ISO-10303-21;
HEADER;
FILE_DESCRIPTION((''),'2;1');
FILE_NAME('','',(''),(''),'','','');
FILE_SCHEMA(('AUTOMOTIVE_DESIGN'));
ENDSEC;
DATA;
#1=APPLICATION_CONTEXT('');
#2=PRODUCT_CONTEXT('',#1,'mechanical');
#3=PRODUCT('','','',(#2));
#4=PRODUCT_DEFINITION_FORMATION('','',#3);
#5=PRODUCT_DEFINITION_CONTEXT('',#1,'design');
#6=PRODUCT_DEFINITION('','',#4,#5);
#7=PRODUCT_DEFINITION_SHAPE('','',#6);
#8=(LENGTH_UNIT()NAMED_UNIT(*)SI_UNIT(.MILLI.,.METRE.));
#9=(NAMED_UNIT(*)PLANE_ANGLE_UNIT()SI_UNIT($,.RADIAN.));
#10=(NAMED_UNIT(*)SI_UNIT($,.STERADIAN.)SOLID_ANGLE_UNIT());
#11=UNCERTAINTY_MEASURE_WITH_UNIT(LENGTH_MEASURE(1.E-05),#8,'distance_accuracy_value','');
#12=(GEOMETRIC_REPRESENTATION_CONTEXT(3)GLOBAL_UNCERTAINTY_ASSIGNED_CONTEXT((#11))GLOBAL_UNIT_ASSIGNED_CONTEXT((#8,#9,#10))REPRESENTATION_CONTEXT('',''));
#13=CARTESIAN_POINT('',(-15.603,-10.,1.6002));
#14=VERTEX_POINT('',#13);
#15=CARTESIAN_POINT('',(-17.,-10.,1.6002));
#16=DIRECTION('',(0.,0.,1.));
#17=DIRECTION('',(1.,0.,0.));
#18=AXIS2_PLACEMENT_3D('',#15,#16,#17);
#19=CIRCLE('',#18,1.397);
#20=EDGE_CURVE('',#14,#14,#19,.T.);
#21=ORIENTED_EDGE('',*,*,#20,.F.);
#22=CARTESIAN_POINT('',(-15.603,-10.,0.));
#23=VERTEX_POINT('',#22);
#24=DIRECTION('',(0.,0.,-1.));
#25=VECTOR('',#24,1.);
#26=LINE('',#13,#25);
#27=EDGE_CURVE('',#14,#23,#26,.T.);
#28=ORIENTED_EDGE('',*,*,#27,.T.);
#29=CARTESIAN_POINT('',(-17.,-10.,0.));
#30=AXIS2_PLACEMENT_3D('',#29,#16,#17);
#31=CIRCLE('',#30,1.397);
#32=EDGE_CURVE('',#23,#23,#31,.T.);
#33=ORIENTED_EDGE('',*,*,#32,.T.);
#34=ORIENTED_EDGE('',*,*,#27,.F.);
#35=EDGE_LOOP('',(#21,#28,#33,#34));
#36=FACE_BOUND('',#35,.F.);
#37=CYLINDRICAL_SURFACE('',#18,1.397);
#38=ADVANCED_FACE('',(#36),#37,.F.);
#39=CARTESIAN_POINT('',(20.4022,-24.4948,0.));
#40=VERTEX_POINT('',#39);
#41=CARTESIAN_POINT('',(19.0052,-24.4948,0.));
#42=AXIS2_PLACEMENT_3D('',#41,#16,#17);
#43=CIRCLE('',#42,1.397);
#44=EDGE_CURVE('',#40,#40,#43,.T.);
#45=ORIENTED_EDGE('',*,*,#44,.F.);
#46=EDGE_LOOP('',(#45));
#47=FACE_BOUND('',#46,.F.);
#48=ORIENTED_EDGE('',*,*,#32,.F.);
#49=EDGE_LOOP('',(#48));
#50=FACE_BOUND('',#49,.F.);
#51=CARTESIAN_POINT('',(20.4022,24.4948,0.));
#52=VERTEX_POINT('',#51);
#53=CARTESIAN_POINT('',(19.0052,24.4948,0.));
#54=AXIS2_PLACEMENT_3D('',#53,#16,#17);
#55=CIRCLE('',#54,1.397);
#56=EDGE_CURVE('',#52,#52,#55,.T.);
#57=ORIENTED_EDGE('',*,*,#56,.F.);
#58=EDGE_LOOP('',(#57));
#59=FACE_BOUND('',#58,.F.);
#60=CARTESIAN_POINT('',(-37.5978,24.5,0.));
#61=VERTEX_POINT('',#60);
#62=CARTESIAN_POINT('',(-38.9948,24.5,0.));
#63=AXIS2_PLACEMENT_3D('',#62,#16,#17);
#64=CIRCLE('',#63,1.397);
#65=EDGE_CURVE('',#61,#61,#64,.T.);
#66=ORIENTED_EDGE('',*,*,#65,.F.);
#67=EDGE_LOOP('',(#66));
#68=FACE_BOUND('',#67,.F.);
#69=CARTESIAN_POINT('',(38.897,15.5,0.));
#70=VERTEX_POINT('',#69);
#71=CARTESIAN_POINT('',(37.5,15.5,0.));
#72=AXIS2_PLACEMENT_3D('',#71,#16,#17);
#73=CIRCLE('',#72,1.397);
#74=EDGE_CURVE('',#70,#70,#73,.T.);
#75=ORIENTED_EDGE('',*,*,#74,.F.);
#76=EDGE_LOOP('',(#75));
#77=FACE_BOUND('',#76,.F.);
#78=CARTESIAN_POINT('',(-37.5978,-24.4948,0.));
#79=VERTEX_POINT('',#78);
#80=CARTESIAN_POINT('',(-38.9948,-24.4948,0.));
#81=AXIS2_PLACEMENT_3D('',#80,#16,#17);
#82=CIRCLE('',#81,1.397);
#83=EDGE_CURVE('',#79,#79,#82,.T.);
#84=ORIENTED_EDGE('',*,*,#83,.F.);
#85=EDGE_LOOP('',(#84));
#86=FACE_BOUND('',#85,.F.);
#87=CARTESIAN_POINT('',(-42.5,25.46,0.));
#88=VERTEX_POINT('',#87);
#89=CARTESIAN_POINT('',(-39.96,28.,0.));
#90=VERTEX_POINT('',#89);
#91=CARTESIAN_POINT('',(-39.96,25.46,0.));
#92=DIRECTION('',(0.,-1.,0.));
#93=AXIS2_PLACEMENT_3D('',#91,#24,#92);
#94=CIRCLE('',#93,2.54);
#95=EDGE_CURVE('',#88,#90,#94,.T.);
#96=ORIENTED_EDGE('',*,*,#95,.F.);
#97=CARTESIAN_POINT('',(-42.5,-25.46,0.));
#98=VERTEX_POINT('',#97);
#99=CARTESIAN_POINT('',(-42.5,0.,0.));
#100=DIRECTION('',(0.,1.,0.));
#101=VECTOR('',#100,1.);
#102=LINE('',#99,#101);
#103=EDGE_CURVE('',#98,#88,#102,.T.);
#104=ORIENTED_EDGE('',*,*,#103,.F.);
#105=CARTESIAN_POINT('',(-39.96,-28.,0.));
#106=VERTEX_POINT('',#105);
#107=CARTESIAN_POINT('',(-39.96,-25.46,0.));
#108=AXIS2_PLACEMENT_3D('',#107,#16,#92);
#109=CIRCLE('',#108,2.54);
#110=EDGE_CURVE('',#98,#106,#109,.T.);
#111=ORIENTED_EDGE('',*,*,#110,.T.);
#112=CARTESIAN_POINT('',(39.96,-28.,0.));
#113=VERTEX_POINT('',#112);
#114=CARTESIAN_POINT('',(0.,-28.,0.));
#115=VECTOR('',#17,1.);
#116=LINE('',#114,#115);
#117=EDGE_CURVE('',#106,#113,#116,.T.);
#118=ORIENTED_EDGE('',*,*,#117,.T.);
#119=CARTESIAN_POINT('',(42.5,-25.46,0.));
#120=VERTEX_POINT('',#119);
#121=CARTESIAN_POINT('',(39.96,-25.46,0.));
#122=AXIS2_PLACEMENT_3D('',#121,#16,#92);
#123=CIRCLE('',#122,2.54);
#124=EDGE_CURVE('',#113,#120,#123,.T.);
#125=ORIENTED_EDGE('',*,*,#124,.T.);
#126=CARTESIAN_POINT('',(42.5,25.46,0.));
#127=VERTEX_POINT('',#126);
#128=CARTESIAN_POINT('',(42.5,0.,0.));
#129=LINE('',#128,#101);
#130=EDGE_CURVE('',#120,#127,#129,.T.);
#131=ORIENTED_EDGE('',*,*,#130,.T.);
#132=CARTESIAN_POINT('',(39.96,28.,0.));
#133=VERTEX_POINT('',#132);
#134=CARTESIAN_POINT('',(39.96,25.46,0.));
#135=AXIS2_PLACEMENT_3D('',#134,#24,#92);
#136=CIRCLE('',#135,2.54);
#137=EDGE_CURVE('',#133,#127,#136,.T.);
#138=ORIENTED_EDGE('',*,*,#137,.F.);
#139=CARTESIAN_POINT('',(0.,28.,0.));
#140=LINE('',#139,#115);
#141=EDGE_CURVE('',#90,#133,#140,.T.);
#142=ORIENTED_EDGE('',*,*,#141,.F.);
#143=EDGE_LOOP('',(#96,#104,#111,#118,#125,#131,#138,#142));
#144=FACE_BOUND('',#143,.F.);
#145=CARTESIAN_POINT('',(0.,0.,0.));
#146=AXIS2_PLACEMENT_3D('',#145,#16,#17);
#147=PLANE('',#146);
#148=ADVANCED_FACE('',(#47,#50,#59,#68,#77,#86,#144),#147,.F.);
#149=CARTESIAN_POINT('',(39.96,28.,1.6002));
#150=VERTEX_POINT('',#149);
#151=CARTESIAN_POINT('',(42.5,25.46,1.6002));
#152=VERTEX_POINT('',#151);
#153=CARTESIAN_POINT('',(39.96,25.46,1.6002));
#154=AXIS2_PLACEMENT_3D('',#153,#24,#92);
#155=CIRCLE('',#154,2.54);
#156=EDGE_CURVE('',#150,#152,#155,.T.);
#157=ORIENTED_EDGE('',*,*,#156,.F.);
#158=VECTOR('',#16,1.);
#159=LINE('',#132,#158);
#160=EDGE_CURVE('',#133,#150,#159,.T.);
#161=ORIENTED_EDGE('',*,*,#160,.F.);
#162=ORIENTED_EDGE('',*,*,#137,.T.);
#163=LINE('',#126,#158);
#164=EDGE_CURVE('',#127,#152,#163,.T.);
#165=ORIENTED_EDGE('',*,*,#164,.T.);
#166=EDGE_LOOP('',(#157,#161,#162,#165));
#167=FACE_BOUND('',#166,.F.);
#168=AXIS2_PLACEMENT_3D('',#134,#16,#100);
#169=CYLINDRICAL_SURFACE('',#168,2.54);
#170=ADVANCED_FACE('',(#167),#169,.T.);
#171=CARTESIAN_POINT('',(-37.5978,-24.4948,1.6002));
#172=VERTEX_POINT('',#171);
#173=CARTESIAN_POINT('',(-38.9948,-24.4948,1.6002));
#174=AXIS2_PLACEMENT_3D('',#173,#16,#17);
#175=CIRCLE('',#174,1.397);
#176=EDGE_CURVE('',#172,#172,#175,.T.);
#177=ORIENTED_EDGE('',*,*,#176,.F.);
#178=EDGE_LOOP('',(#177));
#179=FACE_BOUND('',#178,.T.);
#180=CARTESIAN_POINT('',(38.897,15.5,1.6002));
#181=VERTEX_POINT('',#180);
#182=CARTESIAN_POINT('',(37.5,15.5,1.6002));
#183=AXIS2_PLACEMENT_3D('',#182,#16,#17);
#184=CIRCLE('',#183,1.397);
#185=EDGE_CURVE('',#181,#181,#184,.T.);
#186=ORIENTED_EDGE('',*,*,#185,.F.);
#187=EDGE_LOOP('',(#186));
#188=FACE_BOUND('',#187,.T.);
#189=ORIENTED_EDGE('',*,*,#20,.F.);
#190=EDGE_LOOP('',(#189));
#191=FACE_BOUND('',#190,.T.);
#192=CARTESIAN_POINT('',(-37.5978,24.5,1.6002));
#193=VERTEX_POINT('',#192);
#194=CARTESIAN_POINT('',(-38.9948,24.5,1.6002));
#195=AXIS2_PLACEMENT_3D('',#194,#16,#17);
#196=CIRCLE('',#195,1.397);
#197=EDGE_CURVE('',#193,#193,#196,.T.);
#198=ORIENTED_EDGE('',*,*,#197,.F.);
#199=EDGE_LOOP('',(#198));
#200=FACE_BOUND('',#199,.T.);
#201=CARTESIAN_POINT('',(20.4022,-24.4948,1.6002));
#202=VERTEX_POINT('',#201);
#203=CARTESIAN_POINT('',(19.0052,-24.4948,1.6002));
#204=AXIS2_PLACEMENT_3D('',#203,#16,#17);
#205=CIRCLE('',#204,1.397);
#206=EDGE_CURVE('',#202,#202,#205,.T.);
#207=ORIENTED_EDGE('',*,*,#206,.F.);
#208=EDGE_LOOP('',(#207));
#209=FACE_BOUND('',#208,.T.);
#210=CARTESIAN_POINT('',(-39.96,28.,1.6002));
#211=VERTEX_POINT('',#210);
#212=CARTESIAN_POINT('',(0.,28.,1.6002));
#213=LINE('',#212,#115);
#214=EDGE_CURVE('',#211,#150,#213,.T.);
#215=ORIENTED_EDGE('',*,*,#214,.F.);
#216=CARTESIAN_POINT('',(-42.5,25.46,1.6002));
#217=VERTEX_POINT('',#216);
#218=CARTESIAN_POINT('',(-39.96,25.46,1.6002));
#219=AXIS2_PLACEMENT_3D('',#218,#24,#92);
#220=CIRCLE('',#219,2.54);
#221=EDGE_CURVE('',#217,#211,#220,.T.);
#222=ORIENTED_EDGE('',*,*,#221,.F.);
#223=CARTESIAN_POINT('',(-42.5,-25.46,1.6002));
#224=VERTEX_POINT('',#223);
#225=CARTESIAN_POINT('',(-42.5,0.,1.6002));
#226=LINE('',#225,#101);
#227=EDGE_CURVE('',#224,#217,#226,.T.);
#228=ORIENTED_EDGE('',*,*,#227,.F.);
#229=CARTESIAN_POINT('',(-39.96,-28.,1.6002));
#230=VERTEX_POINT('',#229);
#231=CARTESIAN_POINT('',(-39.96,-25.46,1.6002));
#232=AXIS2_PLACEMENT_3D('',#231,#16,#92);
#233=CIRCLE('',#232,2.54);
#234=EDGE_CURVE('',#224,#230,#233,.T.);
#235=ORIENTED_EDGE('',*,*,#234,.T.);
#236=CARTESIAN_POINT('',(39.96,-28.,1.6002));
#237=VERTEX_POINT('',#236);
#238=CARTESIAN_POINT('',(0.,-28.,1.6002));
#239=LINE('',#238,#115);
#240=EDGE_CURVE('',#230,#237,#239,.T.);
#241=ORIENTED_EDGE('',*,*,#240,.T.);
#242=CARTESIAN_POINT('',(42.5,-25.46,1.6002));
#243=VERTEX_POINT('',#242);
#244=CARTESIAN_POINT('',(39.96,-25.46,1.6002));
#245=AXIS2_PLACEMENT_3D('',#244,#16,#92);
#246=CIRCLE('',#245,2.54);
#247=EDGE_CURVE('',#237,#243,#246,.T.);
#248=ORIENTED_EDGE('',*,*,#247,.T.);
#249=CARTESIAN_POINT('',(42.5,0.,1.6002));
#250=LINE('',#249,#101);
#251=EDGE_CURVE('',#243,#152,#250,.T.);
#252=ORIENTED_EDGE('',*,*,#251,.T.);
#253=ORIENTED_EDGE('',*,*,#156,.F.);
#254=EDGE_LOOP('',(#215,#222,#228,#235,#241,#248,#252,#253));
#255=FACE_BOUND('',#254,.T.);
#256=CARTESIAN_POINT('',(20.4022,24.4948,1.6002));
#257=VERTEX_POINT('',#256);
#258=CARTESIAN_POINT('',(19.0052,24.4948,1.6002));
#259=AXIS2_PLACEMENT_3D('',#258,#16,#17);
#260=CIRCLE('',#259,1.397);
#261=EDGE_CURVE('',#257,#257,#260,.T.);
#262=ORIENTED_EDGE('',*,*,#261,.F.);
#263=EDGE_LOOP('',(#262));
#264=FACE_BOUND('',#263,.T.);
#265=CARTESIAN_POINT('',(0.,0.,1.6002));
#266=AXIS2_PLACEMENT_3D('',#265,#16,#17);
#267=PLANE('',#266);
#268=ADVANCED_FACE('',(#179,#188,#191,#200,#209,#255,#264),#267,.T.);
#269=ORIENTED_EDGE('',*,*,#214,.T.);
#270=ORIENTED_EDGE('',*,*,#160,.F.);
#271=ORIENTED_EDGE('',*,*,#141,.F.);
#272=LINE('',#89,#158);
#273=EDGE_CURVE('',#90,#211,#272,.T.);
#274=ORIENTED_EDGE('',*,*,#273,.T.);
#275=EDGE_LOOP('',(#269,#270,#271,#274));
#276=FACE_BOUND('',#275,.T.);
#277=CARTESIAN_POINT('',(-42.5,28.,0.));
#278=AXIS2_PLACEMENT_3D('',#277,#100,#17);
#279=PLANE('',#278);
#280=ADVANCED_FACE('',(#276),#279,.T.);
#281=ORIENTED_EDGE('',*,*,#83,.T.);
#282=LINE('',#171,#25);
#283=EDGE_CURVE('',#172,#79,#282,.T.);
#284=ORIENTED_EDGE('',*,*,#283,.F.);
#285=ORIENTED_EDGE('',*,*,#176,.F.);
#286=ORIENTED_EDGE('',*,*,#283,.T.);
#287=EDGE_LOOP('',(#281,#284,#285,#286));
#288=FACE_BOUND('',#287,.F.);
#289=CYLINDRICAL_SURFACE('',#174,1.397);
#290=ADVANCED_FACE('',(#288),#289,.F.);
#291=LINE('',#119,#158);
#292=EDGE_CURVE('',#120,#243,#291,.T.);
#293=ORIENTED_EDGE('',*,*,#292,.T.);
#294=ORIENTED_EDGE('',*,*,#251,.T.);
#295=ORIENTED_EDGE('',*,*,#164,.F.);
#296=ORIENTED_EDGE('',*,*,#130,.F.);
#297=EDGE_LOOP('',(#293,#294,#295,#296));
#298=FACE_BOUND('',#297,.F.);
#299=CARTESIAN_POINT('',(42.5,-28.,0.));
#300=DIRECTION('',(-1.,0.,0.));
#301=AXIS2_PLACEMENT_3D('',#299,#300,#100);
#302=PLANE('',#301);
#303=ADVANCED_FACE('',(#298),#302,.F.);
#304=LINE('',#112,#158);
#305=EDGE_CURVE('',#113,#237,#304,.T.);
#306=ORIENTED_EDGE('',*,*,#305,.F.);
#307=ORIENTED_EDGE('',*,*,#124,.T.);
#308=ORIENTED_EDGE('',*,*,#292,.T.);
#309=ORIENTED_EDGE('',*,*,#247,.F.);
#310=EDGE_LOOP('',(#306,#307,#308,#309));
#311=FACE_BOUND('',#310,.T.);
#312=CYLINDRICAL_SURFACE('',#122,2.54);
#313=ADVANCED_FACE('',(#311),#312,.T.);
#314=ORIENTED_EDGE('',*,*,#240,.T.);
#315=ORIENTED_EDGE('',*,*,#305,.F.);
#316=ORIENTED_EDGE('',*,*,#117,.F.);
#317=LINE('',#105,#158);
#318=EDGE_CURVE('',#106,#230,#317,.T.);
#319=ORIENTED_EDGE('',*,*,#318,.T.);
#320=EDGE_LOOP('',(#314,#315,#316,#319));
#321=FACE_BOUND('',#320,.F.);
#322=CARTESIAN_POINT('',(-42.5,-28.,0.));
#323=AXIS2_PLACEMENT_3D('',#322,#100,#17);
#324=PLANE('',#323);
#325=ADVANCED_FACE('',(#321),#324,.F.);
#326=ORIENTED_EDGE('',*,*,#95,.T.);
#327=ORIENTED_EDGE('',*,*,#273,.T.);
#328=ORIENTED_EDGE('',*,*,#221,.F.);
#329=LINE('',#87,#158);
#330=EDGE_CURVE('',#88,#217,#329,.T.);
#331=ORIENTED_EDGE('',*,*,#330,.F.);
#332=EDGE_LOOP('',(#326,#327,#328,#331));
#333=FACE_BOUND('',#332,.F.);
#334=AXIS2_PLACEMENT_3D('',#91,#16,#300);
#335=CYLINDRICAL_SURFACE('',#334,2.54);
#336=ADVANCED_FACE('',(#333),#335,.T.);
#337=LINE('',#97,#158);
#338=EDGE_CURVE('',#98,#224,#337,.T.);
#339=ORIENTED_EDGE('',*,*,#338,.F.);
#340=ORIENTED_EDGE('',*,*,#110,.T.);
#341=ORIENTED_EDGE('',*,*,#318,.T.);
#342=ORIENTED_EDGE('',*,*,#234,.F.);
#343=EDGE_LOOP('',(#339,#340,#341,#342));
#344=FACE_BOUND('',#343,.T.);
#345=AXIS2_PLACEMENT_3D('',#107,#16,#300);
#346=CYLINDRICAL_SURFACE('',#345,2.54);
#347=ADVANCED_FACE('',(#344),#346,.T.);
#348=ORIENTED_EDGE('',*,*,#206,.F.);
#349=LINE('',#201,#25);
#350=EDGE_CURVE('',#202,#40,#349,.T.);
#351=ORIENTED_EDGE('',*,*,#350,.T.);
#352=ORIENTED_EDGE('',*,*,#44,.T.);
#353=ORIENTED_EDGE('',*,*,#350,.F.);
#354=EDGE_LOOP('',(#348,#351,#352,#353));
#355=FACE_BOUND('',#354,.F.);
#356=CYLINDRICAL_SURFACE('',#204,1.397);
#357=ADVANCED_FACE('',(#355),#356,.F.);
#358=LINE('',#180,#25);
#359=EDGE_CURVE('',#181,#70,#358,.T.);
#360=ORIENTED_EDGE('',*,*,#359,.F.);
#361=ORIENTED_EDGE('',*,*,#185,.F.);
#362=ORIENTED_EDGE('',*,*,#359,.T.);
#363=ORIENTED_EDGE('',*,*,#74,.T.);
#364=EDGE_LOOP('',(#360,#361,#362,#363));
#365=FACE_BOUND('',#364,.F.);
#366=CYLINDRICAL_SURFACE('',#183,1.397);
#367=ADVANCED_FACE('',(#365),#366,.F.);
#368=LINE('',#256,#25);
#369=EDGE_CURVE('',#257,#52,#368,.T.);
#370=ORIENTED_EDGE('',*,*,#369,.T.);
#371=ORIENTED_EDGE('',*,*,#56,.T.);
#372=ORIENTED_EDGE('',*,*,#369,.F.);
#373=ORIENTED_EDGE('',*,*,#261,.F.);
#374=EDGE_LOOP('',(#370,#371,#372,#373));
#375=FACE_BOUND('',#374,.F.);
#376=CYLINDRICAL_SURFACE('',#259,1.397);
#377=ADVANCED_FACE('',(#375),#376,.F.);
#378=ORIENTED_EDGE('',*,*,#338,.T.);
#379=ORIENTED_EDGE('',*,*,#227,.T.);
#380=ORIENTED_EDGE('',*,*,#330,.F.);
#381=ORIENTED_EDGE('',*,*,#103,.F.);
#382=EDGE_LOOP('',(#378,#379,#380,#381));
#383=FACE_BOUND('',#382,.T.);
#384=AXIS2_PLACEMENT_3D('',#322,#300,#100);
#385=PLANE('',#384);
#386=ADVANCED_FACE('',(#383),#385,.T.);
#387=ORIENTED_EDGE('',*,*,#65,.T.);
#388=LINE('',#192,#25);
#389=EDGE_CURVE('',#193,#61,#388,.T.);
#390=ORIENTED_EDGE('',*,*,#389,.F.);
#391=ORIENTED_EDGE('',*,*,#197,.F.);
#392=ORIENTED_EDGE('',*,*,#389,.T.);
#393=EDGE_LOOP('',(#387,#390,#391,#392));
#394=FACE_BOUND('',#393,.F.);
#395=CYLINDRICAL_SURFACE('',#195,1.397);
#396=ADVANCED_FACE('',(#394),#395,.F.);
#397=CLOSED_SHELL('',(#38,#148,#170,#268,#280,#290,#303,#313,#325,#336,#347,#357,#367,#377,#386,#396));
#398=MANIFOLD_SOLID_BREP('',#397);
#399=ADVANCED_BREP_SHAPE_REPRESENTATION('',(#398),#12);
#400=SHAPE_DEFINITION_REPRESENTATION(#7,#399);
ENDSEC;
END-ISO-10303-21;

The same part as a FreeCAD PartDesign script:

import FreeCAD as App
import Part
import Sketcher

V = App.Vector
Q = App.Units.Quantity


def edges_at(feature, points):
    """Names of the edges that pass closest to the given points."""
    edges = feature.Shape.Edges
    near = lambda p: min(range(len(edges)), key=lambda i: edges[i].distToShape(Part.Vertex(*p))[0])
    return sorted({f"Edge{near(p) + 1}" for p in points})


def add_polygon(sketch, points):
    """Adds a closed chain of lines whose ends are joined by coincident constraints."""
    first, n = sketch.GeometryCount, len(points)
    for a, b in zip(points, points[1:] + points[:1]):
        sketch.addGeometry(Part.LineSegment(App.Vector(*a, 0), App.Vector(*b, 0)), False)
    for i in range(n):
        sketch.addConstraint(Sketcher.Constraint("Coincident", first + i, 2, first + (i + 1) % n, 1))

doc = App.newDocument("Part")
body = doc.addObject("PartDesign::Body", "Body")

sketch1 = body.newObject("Sketcher::SketchObject", "Sketch")
sketch1.AttachmentSupport = (doc.getObject("XY_Plane"), [""])
sketch1.MapMode = "FlatFace"
add_polygon(sketch1, [(-42, 28), (-42, -28), (42, -28), (42, 28)])
sketch1.addConstraint([
    Sketcher.Constraint("Vertical", 0),
    Sketcher.Constraint("Horizontal", 1),
    Sketcher.Constraint("Vertical", 2),
    Sketcher.Constraint("Horizontal", 3),
    Sketcher.Constraint("Symmetric", 0, 2, 2, 2, -1, 1),
    Sketcher.Constraint("DistanceX", 1, 1, 1, 2, 85.0),
    Sketcher.Constraint("DistanceY", 0, 2, 0, 1, 56.0),
])
pad1 = body.newObject("PartDesign::Pad", "Pad")
pad1.Profile = sketch1
pad1.Length = Q("0.063 in")

sketch2 = body.newObject("Sketcher::SketchObject", "Sketch001")
sketch2.AttachmentSupport = (doc.getObject("XY_Plane"), [""])
sketch2.MapMode = "FlatFace"
sketch2.AttachmentOffset = App.Placement(V(0, 0, 0.063 * 25.4), App.Rotation())
sketch2.addGeometry([
    Part.Circle(V(-39, 24.5, 0), V(0, 0, 1), 1.4),
    Part.Circle(V(-39, -24.5, 0), V(0, 0, 1), 1.4),
    Part.Circle(V(19, 24.5, 0), V(0, 0, 1), 1.4),
    Part.Circle(V(19, -24.5, 0), V(0, 0, 1), 1.4),
], False)
sketch2.addConstraint([
    Sketcher.Constraint("Equal", 0, 1),
    Sketcher.Constraint("Equal", 1, 2),
    Sketcher.Constraint("Equal", 2, 3),
    Sketcher.Constraint("Symmetric", 2, 3, 3, 3, -1),
    Sketcher.Constraint("Horizontal", 1, 3, 3, 3),
    Sketcher.Constraint("Vertical", 0, 3, 1, 3),
    Sketcher.Constraint("Diameter", 0, Q("0.11 in")),
    Sketcher.Constraint("DistanceX", 0, 3, -1, 1, 38.9948),
    Sketcher.Constraint("DistanceY", -1, 1, 0, 3, 24.5),
    Sketcher.Constraint("DistanceY", 1, 3, -1, 1, 24.4948),
    Sketcher.Constraint("DistanceX", -1, 1, 2, 3, 19.0052),
])
pocket1 = body.newObject("PartDesign::Pocket", "Pocket")
pocket1.Profile = sketch2
pocket1.Length = Q("1 in")

sketch3 = body.newObject("Sketcher::SketchObject", "Sketch002")
sketch3.AttachmentSupport = (doc.getObject("XY_Plane"), [""])
sketch3.MapMode = "FlatFace"
sketch3.AttachmentOffset = App.Placement(V(0, 0, 0.063 * 25.4), App.Rotation())
sketch3.addGeometry([
    Part.Circle(V(-17, -10, 0), V(0, 0, 1), 1.4),
    Part.Circle(V(37.5, 15.5, 0), V(0, 0, 1), 1.4),
], False)
sketch3.addConstraint([
    Sketcher.Constraint("Equal", 0, 1),
    Sketcher.Constraint("Diameter", 0, Q("0.11 in")),
    Sketcher.Constraint("DistanceX", 0, 3, -1, 1, 17.0),
    Sketcher.Constraint("DistanceY", 0, 3, -1, 1, 10.0),
    Sketcher.Constraint("DistanceX", -1, 1, 1, 3, 37.5),
    Sketcher.Constraint("DistanceY", -1, 1, 1, 3, 15.5),
])
pocket2 = body.newObject("PartDesign::Pocket", "Pocket001")
pocket2.Profile = sketch3
pocket2.Length = Q("1 in")
doc.recompute()

fillet = body.newObject("PartDesign::Fillet", "Fillet")
fillet.Base = (pocket2, edges_at(pocket2, [
    (-42.5, -28, 0.8),
    (42.5, -28, 0.8),
    (42.5, 28, 0.8),
    (-42.5, 28, 0.8),
]))
fillet.Radius = Q("0.1 in")

doc.recompute()
